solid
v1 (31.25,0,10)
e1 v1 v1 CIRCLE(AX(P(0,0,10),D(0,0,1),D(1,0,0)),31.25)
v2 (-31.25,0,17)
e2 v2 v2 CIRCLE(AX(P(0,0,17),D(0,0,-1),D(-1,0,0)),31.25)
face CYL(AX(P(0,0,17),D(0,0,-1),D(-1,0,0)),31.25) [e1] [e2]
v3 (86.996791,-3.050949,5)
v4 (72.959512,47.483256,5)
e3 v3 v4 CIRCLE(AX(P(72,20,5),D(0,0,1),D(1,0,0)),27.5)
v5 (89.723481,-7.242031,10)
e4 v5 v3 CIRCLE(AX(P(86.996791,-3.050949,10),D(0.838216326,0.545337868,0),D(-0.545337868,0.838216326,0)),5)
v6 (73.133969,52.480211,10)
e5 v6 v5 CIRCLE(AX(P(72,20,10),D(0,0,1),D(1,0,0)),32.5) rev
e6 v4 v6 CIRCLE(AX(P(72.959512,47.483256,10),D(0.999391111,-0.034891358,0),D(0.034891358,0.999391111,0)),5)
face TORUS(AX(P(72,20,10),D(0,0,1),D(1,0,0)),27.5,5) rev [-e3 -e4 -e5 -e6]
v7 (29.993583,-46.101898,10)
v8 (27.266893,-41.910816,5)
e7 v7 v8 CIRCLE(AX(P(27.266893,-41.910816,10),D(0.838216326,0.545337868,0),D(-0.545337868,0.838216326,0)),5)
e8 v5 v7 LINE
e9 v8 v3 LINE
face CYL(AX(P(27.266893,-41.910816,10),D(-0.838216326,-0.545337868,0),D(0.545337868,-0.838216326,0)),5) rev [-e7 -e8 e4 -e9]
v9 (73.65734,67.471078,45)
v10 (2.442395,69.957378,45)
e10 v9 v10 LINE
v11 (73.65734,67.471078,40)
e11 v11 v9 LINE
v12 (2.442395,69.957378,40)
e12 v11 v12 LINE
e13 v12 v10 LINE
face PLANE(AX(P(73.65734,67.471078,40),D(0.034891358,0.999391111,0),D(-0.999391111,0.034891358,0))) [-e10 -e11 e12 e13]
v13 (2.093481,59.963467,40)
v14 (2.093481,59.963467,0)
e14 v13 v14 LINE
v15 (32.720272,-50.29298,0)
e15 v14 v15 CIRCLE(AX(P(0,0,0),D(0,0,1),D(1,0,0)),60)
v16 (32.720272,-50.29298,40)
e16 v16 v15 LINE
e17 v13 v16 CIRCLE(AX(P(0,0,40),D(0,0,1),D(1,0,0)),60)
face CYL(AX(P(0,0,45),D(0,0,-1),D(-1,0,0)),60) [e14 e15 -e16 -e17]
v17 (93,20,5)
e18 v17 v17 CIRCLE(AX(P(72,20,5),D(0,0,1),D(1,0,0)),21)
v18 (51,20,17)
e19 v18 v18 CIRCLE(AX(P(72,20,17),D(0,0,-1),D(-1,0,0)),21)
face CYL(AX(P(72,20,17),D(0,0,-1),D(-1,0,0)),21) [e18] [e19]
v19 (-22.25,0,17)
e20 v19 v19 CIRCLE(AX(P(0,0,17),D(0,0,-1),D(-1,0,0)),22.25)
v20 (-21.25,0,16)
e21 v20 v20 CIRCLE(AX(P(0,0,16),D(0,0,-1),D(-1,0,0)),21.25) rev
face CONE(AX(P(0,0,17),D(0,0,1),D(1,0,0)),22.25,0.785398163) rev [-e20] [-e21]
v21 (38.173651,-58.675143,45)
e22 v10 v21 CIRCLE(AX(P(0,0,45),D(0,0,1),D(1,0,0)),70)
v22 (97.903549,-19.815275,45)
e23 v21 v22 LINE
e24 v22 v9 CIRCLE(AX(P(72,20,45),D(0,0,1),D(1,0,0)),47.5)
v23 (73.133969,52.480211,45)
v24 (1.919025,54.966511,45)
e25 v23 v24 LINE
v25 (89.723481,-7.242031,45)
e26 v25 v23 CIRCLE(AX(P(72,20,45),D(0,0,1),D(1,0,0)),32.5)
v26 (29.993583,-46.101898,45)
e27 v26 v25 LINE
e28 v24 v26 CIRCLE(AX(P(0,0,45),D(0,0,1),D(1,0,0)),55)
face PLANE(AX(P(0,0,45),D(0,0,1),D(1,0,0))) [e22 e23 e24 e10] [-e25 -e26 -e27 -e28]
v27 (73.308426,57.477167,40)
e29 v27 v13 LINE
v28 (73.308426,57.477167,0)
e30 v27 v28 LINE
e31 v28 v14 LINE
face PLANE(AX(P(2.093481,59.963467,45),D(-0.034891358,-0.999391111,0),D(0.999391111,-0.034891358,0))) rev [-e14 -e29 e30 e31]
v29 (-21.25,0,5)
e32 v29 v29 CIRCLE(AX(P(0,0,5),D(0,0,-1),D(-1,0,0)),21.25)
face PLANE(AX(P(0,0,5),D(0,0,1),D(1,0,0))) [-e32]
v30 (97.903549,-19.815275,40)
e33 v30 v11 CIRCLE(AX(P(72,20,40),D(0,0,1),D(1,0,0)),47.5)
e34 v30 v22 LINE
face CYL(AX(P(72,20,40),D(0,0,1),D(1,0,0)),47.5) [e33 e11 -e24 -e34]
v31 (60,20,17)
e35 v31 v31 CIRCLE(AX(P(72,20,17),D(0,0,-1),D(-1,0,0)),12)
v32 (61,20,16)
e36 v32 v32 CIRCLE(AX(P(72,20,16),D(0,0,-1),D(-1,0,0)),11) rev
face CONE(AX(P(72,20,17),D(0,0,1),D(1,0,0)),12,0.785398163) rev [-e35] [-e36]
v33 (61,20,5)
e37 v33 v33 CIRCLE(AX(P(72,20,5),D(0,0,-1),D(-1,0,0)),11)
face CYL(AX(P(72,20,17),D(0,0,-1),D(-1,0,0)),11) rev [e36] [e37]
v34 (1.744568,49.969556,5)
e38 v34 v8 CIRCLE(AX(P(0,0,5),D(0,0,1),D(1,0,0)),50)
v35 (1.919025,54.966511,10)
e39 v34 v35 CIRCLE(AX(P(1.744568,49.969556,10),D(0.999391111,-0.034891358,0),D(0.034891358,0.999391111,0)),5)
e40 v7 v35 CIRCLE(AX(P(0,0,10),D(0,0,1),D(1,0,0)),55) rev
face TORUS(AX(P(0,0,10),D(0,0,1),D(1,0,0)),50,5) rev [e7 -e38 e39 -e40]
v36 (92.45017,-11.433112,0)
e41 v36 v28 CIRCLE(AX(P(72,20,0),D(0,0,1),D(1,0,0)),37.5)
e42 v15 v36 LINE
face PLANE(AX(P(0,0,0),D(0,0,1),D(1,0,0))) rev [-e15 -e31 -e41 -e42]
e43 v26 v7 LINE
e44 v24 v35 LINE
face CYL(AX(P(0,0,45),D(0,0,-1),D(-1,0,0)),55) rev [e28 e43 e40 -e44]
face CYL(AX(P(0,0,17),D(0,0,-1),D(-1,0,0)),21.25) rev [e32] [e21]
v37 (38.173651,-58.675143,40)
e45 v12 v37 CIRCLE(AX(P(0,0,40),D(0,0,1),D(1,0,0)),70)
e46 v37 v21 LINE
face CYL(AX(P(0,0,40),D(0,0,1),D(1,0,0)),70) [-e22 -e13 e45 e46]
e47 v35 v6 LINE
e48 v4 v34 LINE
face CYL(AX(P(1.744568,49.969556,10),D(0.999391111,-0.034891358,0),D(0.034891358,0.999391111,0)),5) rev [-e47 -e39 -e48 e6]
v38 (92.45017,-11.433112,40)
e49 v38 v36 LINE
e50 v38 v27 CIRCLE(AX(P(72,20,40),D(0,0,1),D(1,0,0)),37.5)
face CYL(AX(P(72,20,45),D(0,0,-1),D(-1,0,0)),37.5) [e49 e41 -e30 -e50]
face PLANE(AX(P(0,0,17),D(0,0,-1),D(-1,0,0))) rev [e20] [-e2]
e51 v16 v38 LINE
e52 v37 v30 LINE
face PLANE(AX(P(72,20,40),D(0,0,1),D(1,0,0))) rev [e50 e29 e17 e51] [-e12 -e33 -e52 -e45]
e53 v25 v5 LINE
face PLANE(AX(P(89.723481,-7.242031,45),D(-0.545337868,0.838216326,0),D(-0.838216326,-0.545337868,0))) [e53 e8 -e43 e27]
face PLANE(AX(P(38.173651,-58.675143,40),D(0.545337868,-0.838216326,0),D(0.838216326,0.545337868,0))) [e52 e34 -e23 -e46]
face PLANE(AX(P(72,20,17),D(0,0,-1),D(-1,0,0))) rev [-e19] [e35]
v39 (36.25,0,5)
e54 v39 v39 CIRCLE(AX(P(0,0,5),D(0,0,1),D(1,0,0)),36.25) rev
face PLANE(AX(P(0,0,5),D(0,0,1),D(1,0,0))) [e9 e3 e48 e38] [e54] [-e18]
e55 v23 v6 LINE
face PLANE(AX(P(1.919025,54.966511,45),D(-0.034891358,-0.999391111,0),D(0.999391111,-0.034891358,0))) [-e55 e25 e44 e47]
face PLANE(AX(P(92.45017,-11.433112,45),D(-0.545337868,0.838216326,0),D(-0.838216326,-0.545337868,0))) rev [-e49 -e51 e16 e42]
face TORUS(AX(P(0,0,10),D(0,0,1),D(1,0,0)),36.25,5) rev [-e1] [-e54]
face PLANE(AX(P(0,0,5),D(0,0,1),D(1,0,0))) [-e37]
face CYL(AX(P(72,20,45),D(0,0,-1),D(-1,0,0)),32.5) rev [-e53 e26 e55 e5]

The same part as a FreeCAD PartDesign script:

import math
import FreeCAD as App
import Part
import Sketcher
from FreeCAD import Vector
Q = App.Units.Quantity


def edges_at(feature, points):
    """Names of the edges that pass closest to the given points."""
    edges = feature.Shape.Edges
    near = lambda p: min(range(len(edges)), key=lambda i: edges[i].distToShape(Part.Vertex(*p))[0])
    return sorted({f"Edge{near(p) + 1}" for p in points})


def faces_at(feature, points):
    """Names of the faces that lie closest to the given points."""
    faces = feature.Shape.Faces
    near = lambda p: min(range(len(faces)), key=lambda i: faces[i].distToShape(Part.Vertex(*p))[0])
    return sorted({f"Face{near(p) + 1}" for p in points})

doc = App.newDocument("Part")
params = doc.addObject("Spreadsheet::Sheet", "Params")
for row, (alias, value) in enumerate([
    ("sketch1_radius", "60 mm"),
    ("sketch1_radius2", "37.5 mm"),
    ("pad1_length", "45 mm"),
    ("thickness_wall", "5 mm"),
    ("sketch2_radius", "70 mm"),
    ("sketch2_radius2", "60 mm"),
    ("sketch2_radius3", "47.5 mm"),
    ("pad2_length", "5 mm"),
    ("sketch3_diameter", "42 mm"),
    ("sketch3_diameter2", "22 mm"),
    ("sketch3_diameter3", "62.5 mm"),
    ("sketch3_diameter4", "42.5 mm"),
    ("pad3_length", "12 mm"),
    ("fillet_radius", "5 mm"),
    ("chamfer_size", "1 mm"),
], start=1):
    params.set(f"A{row}", alias)
    params.set(f"B{row}", "=" + value)
    params.setAlias(f"B{row}", alias)

body = doc.addObject("PartDesign::Body", "Body")

sketch1 = body.newObject("Sketcher::SketchObject", "Sketch")
sketch1.AttachmentSupport = (doc.getObject("XY_Plane"), [""])
sketch1.MapMode = "FlatFace"
sketch1.addGeometry([
    Part.LineSegment(Vector(73, 57, 0), Vector(2, 60, 0)),
    Part.ArcOfCircle(Part.Circle(Vector(0, 0, 0), Vector(0, 0, 1), 60), math.radians(88), math.radians(303)),
    Part.LineSegment(Vector(33, -50, 0), Vector(92, -11, 0)),
    Part.ArcOfCircle(Part.Circle(Vector(72, 20, 0), Vector(0, 0, 1), 38), math.radians(-57), math.radians(88)),
], False)
sketch1.addConstraint([
    Sketcher.Constraint("Tangent", 0, 2, 1, 1),
    Sketcher.Constraint("Tangent", 1, 2, 2, 1),
    Sketcher.Constraint("Tangent", 2, 2, 3, 1),
    Sketcher.Constraint("Tangent", 3, 2, 0, 1),
    Sketcher.Constraint("Coincident", 1, 3, -1, 1),
    Sketcher.Constraint("Radius", 1, Q("60 mm")),
    Sketcher.Constraint("Radius", 3, Q("37.5 mm")),
    Sketcher.Constraint("DistanceX", -1, 1, 3, 3, Q("72 mm")),
    Sketcher.Constraint("DistanceY", -1, 1, 3, 3, Q("20 mm")),
])
sketch1.setExpression("Constraints[5]", "Params.sketch1_radius")
sketch1.setExpression("Constraints[6]", "Params.sketch1_radius2")
pad1 = body.newObject("PartDesign::Pad", "Pad")
pad1.Profile = sketch1
pad1.setExpression("Length", "Params.pad1_length")
doc.recompute()

thickness = body.newObject("PartDesign::Thickness", "Thickness")
thickness.Base = (pad1, faces_at(pad1, [(24.75, 0, 45)]))
thickness.setExpression("Value", "Params.thickness_wall")
thickness.Reversed = True
thickness.Join = "Intersection"

sketch2 = body.newObject("Sketcher::SketchObject", "Sketch001")
sketch2.AttachmentSupport = (doc.getObject("XY_Plane"), [""])
sketch2.MapMode = "FlatFace"
sketch2.AttachmentOffset = App.Placement(Vector(0, 0, 40), App.Rotation())
sketch2.addGeometry([
    Part.LineSegment(Vector(74, 67, 0), Vector(2, 70, 0)),
    Part.ArcOfCircle(Part.Circle(Vector(0, 0, 0), Vector(0, 0, 1), 70), math.radians(88), math.radians(303)),
    Part.LineSegment(Vector(38, -59, 0), Vector(98, -20, 0)),
    Part.ArcOfCircle(Part.Circle(Vector(72, 20, 0), Vector(0, 0, 1), 48), math.radians(-57), math.radians(88)),
    Part.LineSegment(Vector(92, -11, 0), Vector(33, -50, 0)),
    Part.ArcOfCircle(Part.Circle(Vector(0, 0, 0), Vector(0, 0, 1), 60), math.radians(88), math.radians(303)),
    Part.LineSegment(Vector(2, 60, 0), Vector(73, 57, 0)),
    Part.ArcOfCircle(Part.Circle(Vector(72, 20, 0), Vector(0, 0, 1), 38), math.radians(-57), math.radians(88)),
], False)
sketch2.addConstraint([
    Sketcher.Constraint("Tangent", 0, 2, 1, 1),
    Sketcher.Constraint("Tangent", 1, 2, 2, 1),
    Sketcher.Constraint("Tangent", 2, 2, 3, 1),
    Sketcher.Constraint("Tangent", 3, 2, 0, 1),
    Sketcher.Constraint("Tangent", 4, 2, 5, 2),
    Sketcher.Constraint("Tangent", 5, 1, 6, 1),
    Sketcher.Constraint("Tangent", 6, 2, 7, 2),
    Sketcher.Constraint("Tangent", 7, 1, 4, 1),
    Sketcher.Constraint("Coincident", 1, 3, -1, 1),
    Sketcher.Constraint("Coincident", 5, 3, -1, 1),
    Sketcher.Constraint("Coincident", 7, 3, 3, 3),
    Sketcher.Constraint("Parallel", 2, 4),
    Sketcher.Constraint("Radius", 1, Q("70 mm")),
    Sketcher.Constraint("Radius", 5, Q("60 mm")),
    Sketcher.Constraint("Radius", 3, Q("47.5 mm")),
    Sketcher.Constraint("DistanceX", -1, 1, 3, 3, Q("72 mm")),
    Sketcher.Constraint("DistanceY", -1, 1, 3, 3, Q("20 mm")),
])
sketch2.setExpression("Constraints[12]", "Params.sketch2_radius")
sketch2.setExpression("Constraints[13]", "Params.sketch2_radius2")
sketch2.setExpression("Constraints[14]", "Params.sketch2_radius3")
pad2 = body.newObject("PartDesign::Pad", "Pad001")
pad2.Profile = sketch2
pad2.setExpression("Length", "Params.pad2_length")

sketch3 = body.newObject("Sketcher::SketchObject", "Sketch002")
sketch3.AttachmentSupport = (doc.getObject("XY_Plane"), [""])
sketch3.MapMode = "FlatFace"
sketch3.AttachmentOffset = App.Placement(Vector(0, 0, 5), App.Rotation())
sketch3.addGeometry([
    Part.Circle(Vector(0, 0, 0), Vector(0, 0, 1), 31),
    Part.Circle(Vector(0, 0, 0), Vector(0, 0, 1), 21),
    Part.Circle(Vector(72, 20, 0), Vector(0, 0, 1), 21),
    Part.Circle(Vector(72, 20, 0), Vector(0, 0, 1), 11),
], False)
sketch3.addConstraint([
    Sketcher.Constraint("Coincident", 0, 3, -1, 1),
    Sketcher.Constraint("Coincident", 1, 3, -1, 1),
    Sketcher.Constraint("Coincident", 3, 3, 2, 3),
    Sketcher.Constraint("Diameter", 2, Q("42 mm")),
    Sketcher.Constraint("Diameter", 3, Q("22 mm")),
    Sketcher.Constraint("Diameter", 0, Q("62.5 mm")),
    Sketcher.Constraint("Diameter", 1, Q("42.5 mm")),
    Sketcher.Constraint("DistanceX", -1, 1, 2, 3, Q("72 mm")),
    Sketcher.Constraint("DistanceY", -1, 1, 2, 3, Q("20 mm")),
])
sketch3.setExpression("Constraints[3]", "Params.sketch3_diameter")
sketch3.setExpression("Constraints[4]", "Params.sketch3_diameter2")
sketch3.setExpression("Constraints[5]", "Params.sketch3_diameter3")
sketch3.setExpression("Constraints[6]", "Params.sketch3_diameter4")
pad3 = body.newObject("PartDesign::Pad", "Pad002")
pad3.Profile = sketch3
pad3.setExpression("Length", "Params.pad3_length")
doc.recompute()

fillet = body.newObject("PartDesign::Fillet", "Fillet")
fillet.Base = (pad3, edges_at(pad3, [
    (-52.993, -14.72, 5),
    (59.859, -26.672, 5),
    (103.314, 28.698, 5),
    (37.526, 53.723, 5),
    (31.25, 0, 5),
]))
fillet.setExpression("Radius", "Params.fillet_radius")
doc.recompute()

chamfer = body.newObject("PartDesign::Chamfer", "Chamfer")
chamfer.Base = (fillet, edges_at(fillet, [(21.25, 0, 17), (83, 20, 17)]))
chamfer.setExpression("Size", "Params.chamfer_size")

doc.recompute()
